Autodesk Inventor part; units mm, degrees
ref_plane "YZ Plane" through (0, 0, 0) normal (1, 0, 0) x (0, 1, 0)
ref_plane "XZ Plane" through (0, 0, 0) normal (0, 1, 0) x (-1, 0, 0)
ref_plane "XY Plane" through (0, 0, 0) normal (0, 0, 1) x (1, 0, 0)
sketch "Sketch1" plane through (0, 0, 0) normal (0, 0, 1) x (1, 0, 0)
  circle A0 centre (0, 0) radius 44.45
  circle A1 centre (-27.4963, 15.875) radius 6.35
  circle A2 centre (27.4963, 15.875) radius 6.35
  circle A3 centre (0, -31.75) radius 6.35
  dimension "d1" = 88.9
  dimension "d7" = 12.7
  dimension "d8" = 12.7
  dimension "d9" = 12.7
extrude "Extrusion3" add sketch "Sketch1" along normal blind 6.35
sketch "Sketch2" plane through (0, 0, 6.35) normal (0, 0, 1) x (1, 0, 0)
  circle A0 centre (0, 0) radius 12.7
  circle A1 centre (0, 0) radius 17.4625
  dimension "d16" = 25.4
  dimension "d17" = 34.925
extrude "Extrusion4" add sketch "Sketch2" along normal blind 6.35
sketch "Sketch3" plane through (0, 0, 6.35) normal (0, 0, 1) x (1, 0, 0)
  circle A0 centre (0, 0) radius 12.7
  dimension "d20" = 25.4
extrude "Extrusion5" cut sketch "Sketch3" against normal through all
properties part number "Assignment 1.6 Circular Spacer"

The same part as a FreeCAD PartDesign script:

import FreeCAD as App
import Part
import Sketcher
Q = App.Units.Quantity

doc = App.newDocument("Part")
body = doc.addObject("PartDesign::Body", "Body")

# Sketch on XY plane
sketch1 = body.newObject("Sketcher::SketchObject", "Sketch")
sketch1.AttachmentSupport = (doc.getObject("XY_Plane"), [""])
sketch1.MapMode = "FlatFace"
sketch1.addGeometry([
    Part.Circle(App.Vector(0, 0, 0), App.Vector(0, 0, 1), 44),
    Part.Circle(App.Vector(0, -32, 0), App.Vector(0, 0, 1), 6),
    Part.Circle(App.Vector(-27, 16, 0), App.Vector(0, 0, 1), 6),
    Part.Circle(App.Vector(27, 16, 0), App.Vector(0, 0, 1), 6),
], False)
sketch1.addConstraint([
    Sketcher.Constraint("Coincident", 0, 3, -1, 1),
    Sketcher.Constraint("Equal", 1, 2),
    Sketcher.Constraint("Equal", 2, 3),
    Sketcher.Constraint("Symmetric", 2, 3, 3, 3, -2),
    Sketcher.Constraint("PointOnObject", 1, 3, -2),
    Sketcher.Constraint("Diameter", 0, Q("3.5 in")),
    Sketcher.Constraint("Diameter", 1, Q("0.5 in")),
    Sketcher.Constraint("DistanceY", 1, 3, -1, 1, Q("1.25 in")),
    Sketcher.Constraint("DistanceY", -1, 1, 2, 3, Q("0.625 in")),
    Sketcher.Constraint("DistanceX", 2, 3, -1, 1, Q("27.4963 mm")),
])
pad1 = body.newObject("PartDesign::Pad", "Pad")
pad1.Profile = sketch1
pad1.Length = Q("0.25 in")

# Sketch on XY plane
sketch2 = body.newObject("Sketcher::SketchObject", "Sketch001")
sketch2.AttachmentSupport = (doc.getObject("XY_Plane"), [""])
sketch2.MapMode = "FlatFace"
sketch2.AttachmentOffset = App.Placement(App.Vector(0, 0, 0.25 * 25.4), App.Rotation())
sketch2.addGeometry([
    Part.Circle(App.Vector(0, 0, 0), App.Vector(0, 0, 1), 17),
    Part.Circle(App.Vector(0, 0, 0), App.Vector(0, 0, 1), 13),
], False)
sketch2.addConstraint([
    Sketcher.Constraint("Coincident", 0, 3, -1, 1),
    Sketcher.Constraint("Coincident", 1, 3, -1, 1),
    Sketcher.Constraint("Diameter", 1, Q("1 in")),
    Sketcher.Constraint("Diameter", 0, Q("1.375 in")),
])
pad2 = body.newObject("PartDesign::Pad", "Pad001")
pad2.Profile = sketch2
pad2.Length = Q("0.25 in")

# Sketch on XY plane
sketch3 = body.newObject("Sketcher::SketchObject", "Sketch002")
sketch3.AttachmentSupport = (doc.getObject("XY_Plane"), [""])
sketch3.MapMode = "FlatFace"
sketch3.AttachmentOffset = App.Placement(App.Vector(0, 0, 0.25 * 25.4), App.Rotation())
sketch3.addGeometry(Part.Circle(App.Vector(0, 0, 0), App.Vector(0, 0, 1), 13), False)
sketch3.addConstraint([
    Sketcher.Constraint("Coincident", 0, 3, -1, 1),
    Sketcher.Constraint("Diameter", 0, Q("1 in")),
])
pocket1 = body.newObject("PartDesign::Pocket", "Pocket")
pocket1.Profile = sketch3
pocket1.Type = "ThroughAll"

doc.recompute()
